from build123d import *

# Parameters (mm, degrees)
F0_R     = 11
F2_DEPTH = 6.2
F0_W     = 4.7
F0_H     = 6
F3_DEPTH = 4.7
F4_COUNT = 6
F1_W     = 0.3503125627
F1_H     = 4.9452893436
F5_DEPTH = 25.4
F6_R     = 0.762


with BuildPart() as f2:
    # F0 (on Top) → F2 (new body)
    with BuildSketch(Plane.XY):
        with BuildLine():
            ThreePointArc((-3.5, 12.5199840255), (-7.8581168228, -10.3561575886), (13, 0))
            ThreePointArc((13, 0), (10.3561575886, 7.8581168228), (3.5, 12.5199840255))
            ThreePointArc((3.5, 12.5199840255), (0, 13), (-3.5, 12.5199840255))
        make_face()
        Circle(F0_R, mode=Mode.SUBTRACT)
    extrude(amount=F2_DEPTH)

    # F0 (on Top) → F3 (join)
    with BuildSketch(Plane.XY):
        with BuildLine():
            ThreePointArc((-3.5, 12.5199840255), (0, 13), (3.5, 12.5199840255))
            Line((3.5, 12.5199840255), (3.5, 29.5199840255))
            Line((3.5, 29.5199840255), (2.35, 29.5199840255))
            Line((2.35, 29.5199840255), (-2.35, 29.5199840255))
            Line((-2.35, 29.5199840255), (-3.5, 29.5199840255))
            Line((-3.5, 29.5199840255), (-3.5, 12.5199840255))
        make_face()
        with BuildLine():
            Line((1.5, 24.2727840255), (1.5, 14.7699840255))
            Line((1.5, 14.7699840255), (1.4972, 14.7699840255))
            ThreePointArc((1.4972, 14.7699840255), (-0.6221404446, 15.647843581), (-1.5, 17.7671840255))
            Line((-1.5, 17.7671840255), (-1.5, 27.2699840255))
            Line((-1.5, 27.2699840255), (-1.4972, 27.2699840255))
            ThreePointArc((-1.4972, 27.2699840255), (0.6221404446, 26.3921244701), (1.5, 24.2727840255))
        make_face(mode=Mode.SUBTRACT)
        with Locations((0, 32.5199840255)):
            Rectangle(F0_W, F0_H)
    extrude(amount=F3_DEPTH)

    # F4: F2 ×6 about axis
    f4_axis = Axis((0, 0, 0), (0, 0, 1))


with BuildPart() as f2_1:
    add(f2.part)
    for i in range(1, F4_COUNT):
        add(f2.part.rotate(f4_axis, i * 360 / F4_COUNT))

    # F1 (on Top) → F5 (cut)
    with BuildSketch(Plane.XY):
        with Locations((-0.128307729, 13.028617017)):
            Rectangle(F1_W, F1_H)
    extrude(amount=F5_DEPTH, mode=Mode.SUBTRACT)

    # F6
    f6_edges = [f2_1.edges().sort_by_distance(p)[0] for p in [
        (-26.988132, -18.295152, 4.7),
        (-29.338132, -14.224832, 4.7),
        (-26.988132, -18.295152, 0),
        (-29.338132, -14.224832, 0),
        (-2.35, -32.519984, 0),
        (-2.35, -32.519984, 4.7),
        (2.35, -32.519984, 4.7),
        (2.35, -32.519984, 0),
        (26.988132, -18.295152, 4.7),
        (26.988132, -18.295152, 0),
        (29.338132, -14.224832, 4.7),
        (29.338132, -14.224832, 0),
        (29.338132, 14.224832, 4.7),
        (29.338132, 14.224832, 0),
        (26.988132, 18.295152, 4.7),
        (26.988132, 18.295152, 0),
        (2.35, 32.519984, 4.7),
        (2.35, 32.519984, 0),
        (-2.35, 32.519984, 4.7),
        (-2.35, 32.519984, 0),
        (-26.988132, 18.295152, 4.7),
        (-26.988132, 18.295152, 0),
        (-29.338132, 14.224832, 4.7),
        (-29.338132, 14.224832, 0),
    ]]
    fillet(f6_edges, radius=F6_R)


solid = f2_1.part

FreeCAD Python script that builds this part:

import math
import FreeCAD as App
import Part
import Sketcher

V = App.Vector


def edges_at(feature, points):
    """Names of the edges that pass closest to the given points."""
    edges = feature.Shape.Edges
    near = lambda p: min(range(len(edges)), key=lambda i: edges[i].distToShape(Part.Vertex(*p))[0])
    return sorted({f"Edge{near(p) + 1}" for p in points})


def add_polygon(sketch, points):
    """Adds a closed chain of lines whose ends are joined by coincident constraints."""
    first, n = sketch.GeometryCount, len(points)
    for a, b in zip(points, points[1:] + points[:1]):
        sketch.addGeometry(Part.LineSegment(App.Vector(*a, 0), App.Vector(*b, 0)), False)
    for i in range(n):
        sketch.addConstraint(Sketcher.Constraint("Coincident", first + i, 2, first + (i + 1) % n, 1))

doc = App.newDocument("Part")
params = doc.addObject("Spreadsheet::Sheet", "Params")
for row, (alias, value) in enumerate([
    ("sketch1_diameter", "22 mm"),
    ("sketch1_radius", "13 mm"),
    ("pad1_length", "6.2 mm"),
    ("sketch2_radius", "13 mm"),
    ("sketch2_height", "17 mm"),
    ("sketch2_height2", "6 mm"),
    ("sketch2_width", "4.7 mm"),
    ("pad2_length", "4.7 mm"),
    ("pocket1_length", "25.4 mm"),
    ("fillet_radius", "0.762 mm"),
], start=1):
    params.set(f"A{row}", alias)
    params.set(f"B{row}", "=" + value)
    params.setAlias(f"B{row}", alias)

body = doc.addObject("PartDesign::Body", "Body")

# Sketch on XY plane
sketch1 = doc.addObject("Sketcher::SketchObject", "Sketch")
body.addObject(sketch1)
sketch1.AttachmentSupport = (doc.XY_Plane, [""])
sketch1.MapMode = "FlatFace"
sketch1.addGeometry([
    Part.ArcOfCircle(Part.Circle(V(0, 0, 0), V(0, 0, 1), 13), math.radians(106), math.radians(360)),
    Part.ArcOfCircle(Part.Circle(V(0, 0, 0), V(0, 0, 1), 13), math.radians(0), math.radians(74)),
    Part.ArcOfCircle(Part.Circle(V(0, 0, 0), V(0, 0, 1), 13), math.radians(74), math.radians(106)),
    Part.Circle(V(0, 0, 0), V(0, 0, 1), 11),
], False)
sketch1.addConstraint([
    Sketcher.Constraint("Tangent", 0, 2, 1, 1),
    Sketcher.Constraint("Tangent", 1, 2, 2, 1),
    Sketcher.Constraint("Tangent", 2, 2, 0, 1),
    Sketcher.Constraint("Coincident", 0, 3, -1, 1),
    Sketcher.Constraint("Coincident", 3, 3, -1, 1),
    Sketcher.Constraint("PointOnObject", 0, 2, -1),
    Sketcher.Constraint("Horizontal", 1, 2, 2, 2),
    Sketcher.Constraint("Diameter", 3, 22.0),
    Sketcher.Constraint("Radius", 0, 13.0),
    Sketcher.Constraint("DistanceX", 2, 2, 1, 2, 7.0),
])
sketch1.setExpression("Constraints[7]", "Params.sketch1_diameter")
sketch1.setExpression("Constraints[8]", "Params.sketch1_radius")
pad1 = doc.addObject("PartDesign::Pad", "Pad")
body.addObject(pad1)
pad1.Profile = sketch1
pad1.setExpression("Length", "Params.pad1_length")

# Sketch on XY plane
sketch2 = doc.addObject("Sketcher::SketchObject", "Sketch001")
body.addObject(sketch2)
sketch2.AttachmentSupport = (doc.XY_Plane, [""])
sketch2.MapMode = "FlatFace"
sketch2.addGeometry([
    Part.ArcOfCircle(Part.Circle(V(0, 0, 0), V(0, 0, 1), 13), math.radians(74), math.radians(106)),  # 0
    Part.LineSegment(V(3.5, 12.52, 0), V(3.5, 29.52, 0)),  # 1
    Part.LineSegment(V(3.5, 29.52, 0), V(2.35, 29.52, 0)),  # 2
    Part.LineSegment(V(2.35, 29.52, 0), V(2.35, 35.52, 0)),  # 3
    Part.LineSegment(V(2.35, 35.52, 0), V(-2.35, 35.52, 0)),  # 4
    Part.LineSegment(V(-2.35, 35.52, 0), V(-2.35, 29.52, 0)),  # 5
    Part.LineSegment(V(-2.35, 29.52, 0), V(-3.5, 29.52, 0)),  # 6
    Part.LineSegment(V(-3.5, 29.52, 0), V(-3.5, 12.52, 0)),  # 7
    Part.ArcOfCircle(Part.Circle(V(-1.4972, 24.2728, 0), V(0, 0, 1), 2.9972), math.radians(0), math.radians(90)),  # 8
    Part.LineSegment(V(1.5, 24.2728, 0), V(1.5, 14.77, 0)),  # 9
    Part.LineSegment(V(1.5, 14.77, 0), V(1.4972, 14.77, 0)),  # 10
    Part.ArcOfCircle(Part.Circle(V(1.4972, 17.7672, 0), V(0, 0, 1), 2.9972), math.radians(180), math.radians(270)),  # 11
    Part.LineSegment(V(-1.5, 17.7672, 0), V(-1.5, 27.27, 0)),  # 12
    Part.LineSegment(V(-1.5, 27.27, 0), V(-1.4972, 27.27, 0)),  # 13
], False)
sketch2.addConstraint([
    Sketcher.Constraint("Coincident", 0, 1, 1, 1),
    Sketcher.Constraint("Coincident", 1, 2, 2, 1),
    Sketcher.Constraint("Coincident", 2, 2, 3, 1),
    Sketcher.Constraint("Coincident", 3, 2, 4, 1),
    Sketcher.Constraint("Coincident", 4, 2, 5, 1),
    Sketcher.Constraint("Coincident", 5, 2, 6, 1),
    Sketcher.Constraint("Coincident", 6, 2, 7, 1),
    Sketcher.Constraint("Coincident", 7, 2, 0, 2),
    Sketcher.Constraint("Tangent", 8, 1, 9, 1),
    Sketcher.Constraint("Coincident", 9, 2, 10, 1),
    Sketcher.Constraint("Tangent", 10, 2, 11, 2),
    Sketcher.Constraint("Tangent", 11, 1, 12, 1),
    Sketcher.Constraint("Coincident", 12, 2, 13, 1),
    Sketcher.Constraint("Tangent", 13, 2, 8, 2),
    Sketcher.Constraint("Vertical", 1),
    Sketcher.Constraint("Horizontal", 2),
    Sketcher.Constraint("Vertical", 3),
    Sketcher.Constraint("Horizontal", 4),
    Sketcher.Constraint("Vertical", 5),
    Sketcher.Constraint("Horizontal", 6),
    Sketcher.Constraint("Vertical", 7),
    Sketcher.Constraint("Vertical", 9),
    Sketcher.Constraint("Vertical", 12),
    Sketcher.Constraint("Coincident", 0, 3, -1, 1),
    Sketcher.Constraint("Equal", 8, 11),
    Sketcher.Constraint("Symmetric", 2, 2, 5, 2, -2),
    Sketcher.Constraint("Horizontal", 0, 1, 7, 2),
    Sketcher.Constraint("Vertical", 11, 3, 10, 2),
    Sketcher.Constraint("Vertical", 8, 3, 13, 2),
    Sketcher.Constraint("Radius", 0, 13.0),
    Sketcher.Constraint("DistanceY", 1, 1, 1, 2, 17.0),
    Sketcher.Constraint("DistanceY", 3, 1, 3, 2, 6.0),
    Sketcher.Constraint("DistanceX", 4, 2, 4, 1, 4.7),
    Sketcher.Constraint("DistanceX", 6, 2, 1, 2, 7.0),
    Sketcher.Constraint("DistanceX", 8, 1, 1, 2, 2.0),
    Sketcher.Constraint("DistanceX", 11, 1, 9, 2, 3.0),
    Sketcher.Constraint("Radius", 8, 2.9972),
    Sketcher.Constraint("DistanceY", 0, 1, 9, 2, 2.25),
    Sketcher.Constraint("DistanceY", 12, 2, 5, 2, 2.25),
])
sketch2.setExpression("Constraints[29]", "Params.sketch2_radius")
sketch2.setExpression("Constraints[30]", "Params.sketch2_height")
sketch2.setExpression("Constraints[31]", "Params.sketch2_height2")
sketch2.setExpression("Constraints[32]", "Params.sketch2_width")
pad2 = doc.addObject("PartDesign::Pad", "Pad001")
body.addObject(pad2)
pad2.Profile = sketch2
pad2.setExpression("Length", "Params.pad2_length")
body2 = doc.addObject("PartDesign::Body", "Body001")
doc.recompute()

body2.BaseFeature = body
doc.recompute()

body3 = doc.addObject("PartDesign::Body", "Body002")
body3.BaseFeature = body
body3.Placement = App.Placement(V(0, 0, 0), App.Rotation(V(0, 0, 1), 60))
boolean = doc.addObject("PartDesign::Boolean", "Boolean")
body2.addObject(boolean)
boolean.Type = "Fuse"
boolean.addObjects([body3])
doc.recompute()

body4 = doc.addObject("PartDesign::Body", "Body003")
body4.BaseFeature = body
body4.Placement = App.Placement(V(0, 0, 0), App.Rotation(V(0, 0, 1), 120))
boolean2 = doc.addObject("PartDesign::Boolean", "Boolean001")
body2.addObject(boolean2)
boolean2.Type = "Fuse"
boolean2.addObjects([body4])
doc.recompute()

body5 = doc.addObject("PartDesign::Body", "Body004")
body5.BaseFeature = body
body5.Placement = App.Placement(V(0, 0, 0), App.Rotation(V(0, 0, 1), 180))
boolean3 = doc.addObject("PartDesign::Boolean", "Boolean002")
body2.addObject(boolean3)
boolean3.Type = "Fuse"
boolean3.addObjects([body5])
doc.recompute()

body6 = doc.addObject("PartDesign::Body", "Body005")
body6.BaseFeature = body
body6.Placement = App.Placement(V(0, 0, 0), App.Rotation(V(0, 0, 1), 240))
boolean4 = doc.addObject("PartDesign::Boolean", "Boolean003")
body2.addObject(boolean4)
boolean4.Type = "Fuse"
boolean4.addObjects([body6])
doc.recompute()

body.Placement = App.Placement(V(0, 0, 0), App.Rotation(V(0, 0, 1), 300))
boolean5 = doc.addObject("PartDesign::Boolean", "Boolean004")
body2.addObject(boolean5)
boolean5.Type = "Fuse"
boolean5.addObjects([body])

# Sketch on XY plane
sketch3 = doc.addObject("Sketcher::SketchObject", "Sketch002")
body2.addObject(sketch3)
sketch3.AttachmentSupport = (doc.getObject("XY_Plane001"), [""])
sketch3.MapMode = "FlatFace"
add_polygon(sketch3, [(-0.3, 15.5), (-0.3, 10.56), (0.05, 10.56), (0.05, 15.5)])  # lines 0-3
sketch3.addConstraint([
    Sketcher.Constraint("Vertical", 0),
    Sketcher.Constraint("Horizontal", 1),
    Sketcher.Constraint("Vertical", 2),
    Sketcher.Constraint("Horizontal", 3),
    Sketcher.Constraint("DistanceY", 0, 2, 0, 1, 4.945289),
    Sketcher.Constraint("DistanceX", 1, 1, 1, 2, 0.350313),
    Sketcher.Constraint("DistanceX", -1, 1, 1, 2, 0.046849),
    Sketcher.Constraint("DistanceY", -1, 1, 2, 2, 15.501262),
])
pocket1 = doc.addObject("PartDesign::Pocket", "Pocket")
body2.addObject(pocket1)
pocket1.Profile = sketch3
pocket1.setExpression("Length", "Params.pocket1_length")
pocket1.Reversed = True
doc.recompute()

fillet = doc.addObject("PartDesign::Fillet", "Fillet")
body2.addObject(fillet)
fillet.Base = (pocket1, edges_at(pocket1, [
    (-26.988, -18.295, 4.7),
    (-29.338, -14.225, 4.7),
    (-26.988, -18.295, 0),
    (-29.338, -14.225, 0),
    (-2.35, -32.52, 0),
    (-2.35, -32.52, 4.7),
    (2.35, -32.52, 4.7),
    (2.35, -32.52, 0),
    (26.988, -18.295, 4.7),
    (26.988, -18.295, 0),
    (29.338, -14.225, 4.7),
    (29.338, -14.225, 0),
    (29.338, 14.225, 4.7),
    (29.338, 14.225, 0),
    (26.988, 18.295, 4.7),
    (26.988, 18.295, 0),
    (2.35, 32.52, 4.7),
    (2.35, 32.52, 0),
    (-2.35, 32.52, 4.7),
    (-2.35, 32.52, 0),
    (-26.988, 18.295, 4.7),
    (-26.988, 18.295, 0),
    (-29.338, 14.225, 4.7),
    (-29.338, 14.225, 0),
]))
fillet.setExpression("Radius", "Params.fillet_radius")

doc.recompute()
